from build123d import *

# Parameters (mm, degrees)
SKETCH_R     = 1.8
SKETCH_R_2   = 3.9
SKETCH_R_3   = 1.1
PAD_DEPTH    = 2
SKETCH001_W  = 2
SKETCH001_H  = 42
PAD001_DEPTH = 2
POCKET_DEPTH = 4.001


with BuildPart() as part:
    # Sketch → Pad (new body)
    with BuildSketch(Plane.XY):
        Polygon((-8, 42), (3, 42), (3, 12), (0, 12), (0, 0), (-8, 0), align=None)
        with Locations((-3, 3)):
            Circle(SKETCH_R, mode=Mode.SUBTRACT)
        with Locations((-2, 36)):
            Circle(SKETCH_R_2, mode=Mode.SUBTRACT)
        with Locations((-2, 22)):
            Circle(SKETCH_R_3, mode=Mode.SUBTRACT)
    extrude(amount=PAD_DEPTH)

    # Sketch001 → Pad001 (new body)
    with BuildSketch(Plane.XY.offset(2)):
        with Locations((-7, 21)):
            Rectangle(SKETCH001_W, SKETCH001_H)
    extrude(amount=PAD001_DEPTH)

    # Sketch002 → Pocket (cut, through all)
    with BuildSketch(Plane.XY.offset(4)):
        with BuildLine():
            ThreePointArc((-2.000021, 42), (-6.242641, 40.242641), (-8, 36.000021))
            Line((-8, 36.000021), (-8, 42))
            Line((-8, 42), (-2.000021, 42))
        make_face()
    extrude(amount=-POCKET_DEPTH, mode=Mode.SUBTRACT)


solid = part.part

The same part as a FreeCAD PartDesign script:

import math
import FreeCAD as App
import Part
import Sketcher
from FreeCAD import Vector
Q = App.Units.Quantity


def add_polygon(sketch, points):
    """Adds a closed chain of lines whose ends are joined by coincident constraints."""
    first, n = sketch.GeometryCount, len(points)
    for a, b in zip(points, points[1:] + points[:1]):
        sketch.addGeometry(Part.LineSegment(App.Vector(*a, 0), App.Vector(*b, 0)), False)
    for i in range(n):
        sketch.addConstraint(Sketcher.Constraint("Coincident", first + i, 2, first + (i + 1) % n, 1))

doc = App.newDocument("Part")
body = doc.addObject("PartDesign::Body", "Body")

# Sketch on XY plane
sketch1 = body.newObject("Sketcher::SketchObject", "Sketch")
sketch1.AttachmentSupport = (doc.getObject("XY_Plane"), [""])
sketch1.MapMode = "FlatFace"
add_polygon(sketch1, [(3, 42), (-8, 42), (-8, 0), (0, 0), (0, 12), (3, 12)])  # lines 0-5
sketch1.addGeometry(Part.Circle(Vector(-3, 3, 0), Vector(0, 0, 1), 1.8), False)  # 6
sketch1.addGeometry(Part.Circle(Vector(-2, 22, 0), Vector(0, 0, 1), 1.1), False)  # 7
sketch1.addGeometry(Part.Circle(Vector(-2, 36, 0), Vector(0, 0, 1), 3.9), False)  # 8
sketch1.addConstraint([
    Sketcher.Constraint("Horizontal", 0),
    Sketcher.Constraint("Vertical", 1),
    Sketcher.Constraint("Horizontal", 2),
    Sketcher.Constraint("Vertical", 3),
    Sketcher.Constraint("Horizontal", 4),
    Sketcher.Constraint("Vertical", 5),
    Sketcher.Constraint("Coincident", 2, 2, -1, 1),
    Sketcher.Constraint("Vertical", 7, 3, 8, 3),
    Sketcher.Constraint("Diameter", 6, Q("3.6 mm")),
    Sketcher.Constraint("Diameter", 7, Q("2.2 mm")),
    Sketcher.Constraint("Diameter", 8, Q("7.8 mm")),
    Sketcher.Constraint("DistanceX", 0, 2, 0, 1, Q("11 mm")),
    Sketcher.Constraint("DistanceX", 2, 1, 2, 2, Q("8 mm")),
    Sketcher.Constraint("DistanceY", 1, 2, 1, 1, Q("42 mm")),
    Sketcher.Constraint("DistanceY", 3, 1, 3, 2, Q("12 mm")),
    Sketcher.Constraint("DistanceX", 6, 3, -1, 1, Q("3 mm")),
    Sketcher.Constraint("DistanceY", -1, 1, 6, 3, Q("3 mm")),
    Sketcher.Constraint("DistanceX", 7, 3, -1, 1, Q("2 mm")),
    Sketcher.Constraint("DistanceY", -1, 1, 7, 3, Q("22 mm")),
    Sketcher.Constraint("DistanceY", -1, 1, 8, 3, Q("36 mm")),
])
pad1 = body.newObject("PartDesign::Pad", "Pad")
pad1.Profile = sketch1
pad1.Length = 2

# Sketch on XY plane
sketch2 = body.newObject("Sketcher::SketchObject", "Sketch001")
sketch2.AttachmentSupport = (doc.getObject("XY_Plane"), [""])
sketch2.MapMode = "FlatFace"
sketch2.AttachmentOffset = App.Placement(Vector(0, 0, 2), App.Rotation())
add_polygon(sketch2, [(-8, 42), (-8, 0), (-6, 0), (-6, 42)])  # lines 0-3
sketch2.addConstraint([
    Sketcher.Constraint("Vertical", 0),
    Sketcher.Constraint("Horizontal", 1),
    Sketcher.Constraint("Vertical", 2),
    Sketcher.Constraint("Horizontal", 3),
    Sketcher.Constraint("PointOnObject", 0, 2, -1),
    Sketcher.Constraint("DistanceX", 1, 1, 1, 2, Q("2 mm")),
    Sketcher.Constraint("DistanceY", 0, 2, 0, 1, Q("42 mm")),
    Sketcher.Constraint("DistanceX", 0, 2, -1, 1, Q("8 mm")),
])
pad2 = body.newObject("PartDesign::Pad", "Pad001")
pad2.Profile = sketch2
pad2.Length = 2

# Sketch on XY plane
sketch3 = body.newObject("Sketcher::SketchObject", "Sketch002")
sketch3.AttachmentSupport = (doc.getObject("XY_Plane"), [""])
sketch3.MapMode = "FlatFace"
sketch3.AttachmentOffset = App.Placement(Vector(0, 0, 4), App.Rotation())
sketch3.addGeometry([
    Part.ArcOfCircle(Part.Circle(Vector(-2, 36, 0), Vector(0, 0, 1), 6), math.radians(90), math.radians(180)),
    Part.LineSegment(Vector(-2, 42, 0), Vector(-8, 42, 0)),
    Part.LineSegment(Vector(-8, 42, 0), Vector(-8, 36, 0)),
], False)
sketch3.addConstraint([
    Sketcher.Constraint("Coincident", 0, 1, 1, 1),
    Sketcher.Constraint("Coincident", 1, 2, 2, 1),
    Sketcher.Constraint("Coincident", 2, 2, 0, 2),
    Sketcher.Constraint("Horizontal", 1),
    Sketcher.Constraint("Vertical", 2),
    Sketcher.Constraint("Equal", 1, 2),
    Sketcher.Constraint("Radius", 0, Q("5.999999 mm")),
    Sketcher.Constraint("DistanceX", 0, 3, -1, 1, Q("2.000001 mm")),
    Sketcher.Constraint("DistanceY", -1, 1, 0, 3, Q("36.000001 mm")),
    Sketcher.Constraint("DistanceX", 1, 2, 1, 1, Q("5.999979 mm")),
])
pocket1 = body.newObject("PartDesign::Pocket", "Pocket")
pocket1.Profile = sketch3
pocket1.Type = "ThroughAll"

doc.recompute()
